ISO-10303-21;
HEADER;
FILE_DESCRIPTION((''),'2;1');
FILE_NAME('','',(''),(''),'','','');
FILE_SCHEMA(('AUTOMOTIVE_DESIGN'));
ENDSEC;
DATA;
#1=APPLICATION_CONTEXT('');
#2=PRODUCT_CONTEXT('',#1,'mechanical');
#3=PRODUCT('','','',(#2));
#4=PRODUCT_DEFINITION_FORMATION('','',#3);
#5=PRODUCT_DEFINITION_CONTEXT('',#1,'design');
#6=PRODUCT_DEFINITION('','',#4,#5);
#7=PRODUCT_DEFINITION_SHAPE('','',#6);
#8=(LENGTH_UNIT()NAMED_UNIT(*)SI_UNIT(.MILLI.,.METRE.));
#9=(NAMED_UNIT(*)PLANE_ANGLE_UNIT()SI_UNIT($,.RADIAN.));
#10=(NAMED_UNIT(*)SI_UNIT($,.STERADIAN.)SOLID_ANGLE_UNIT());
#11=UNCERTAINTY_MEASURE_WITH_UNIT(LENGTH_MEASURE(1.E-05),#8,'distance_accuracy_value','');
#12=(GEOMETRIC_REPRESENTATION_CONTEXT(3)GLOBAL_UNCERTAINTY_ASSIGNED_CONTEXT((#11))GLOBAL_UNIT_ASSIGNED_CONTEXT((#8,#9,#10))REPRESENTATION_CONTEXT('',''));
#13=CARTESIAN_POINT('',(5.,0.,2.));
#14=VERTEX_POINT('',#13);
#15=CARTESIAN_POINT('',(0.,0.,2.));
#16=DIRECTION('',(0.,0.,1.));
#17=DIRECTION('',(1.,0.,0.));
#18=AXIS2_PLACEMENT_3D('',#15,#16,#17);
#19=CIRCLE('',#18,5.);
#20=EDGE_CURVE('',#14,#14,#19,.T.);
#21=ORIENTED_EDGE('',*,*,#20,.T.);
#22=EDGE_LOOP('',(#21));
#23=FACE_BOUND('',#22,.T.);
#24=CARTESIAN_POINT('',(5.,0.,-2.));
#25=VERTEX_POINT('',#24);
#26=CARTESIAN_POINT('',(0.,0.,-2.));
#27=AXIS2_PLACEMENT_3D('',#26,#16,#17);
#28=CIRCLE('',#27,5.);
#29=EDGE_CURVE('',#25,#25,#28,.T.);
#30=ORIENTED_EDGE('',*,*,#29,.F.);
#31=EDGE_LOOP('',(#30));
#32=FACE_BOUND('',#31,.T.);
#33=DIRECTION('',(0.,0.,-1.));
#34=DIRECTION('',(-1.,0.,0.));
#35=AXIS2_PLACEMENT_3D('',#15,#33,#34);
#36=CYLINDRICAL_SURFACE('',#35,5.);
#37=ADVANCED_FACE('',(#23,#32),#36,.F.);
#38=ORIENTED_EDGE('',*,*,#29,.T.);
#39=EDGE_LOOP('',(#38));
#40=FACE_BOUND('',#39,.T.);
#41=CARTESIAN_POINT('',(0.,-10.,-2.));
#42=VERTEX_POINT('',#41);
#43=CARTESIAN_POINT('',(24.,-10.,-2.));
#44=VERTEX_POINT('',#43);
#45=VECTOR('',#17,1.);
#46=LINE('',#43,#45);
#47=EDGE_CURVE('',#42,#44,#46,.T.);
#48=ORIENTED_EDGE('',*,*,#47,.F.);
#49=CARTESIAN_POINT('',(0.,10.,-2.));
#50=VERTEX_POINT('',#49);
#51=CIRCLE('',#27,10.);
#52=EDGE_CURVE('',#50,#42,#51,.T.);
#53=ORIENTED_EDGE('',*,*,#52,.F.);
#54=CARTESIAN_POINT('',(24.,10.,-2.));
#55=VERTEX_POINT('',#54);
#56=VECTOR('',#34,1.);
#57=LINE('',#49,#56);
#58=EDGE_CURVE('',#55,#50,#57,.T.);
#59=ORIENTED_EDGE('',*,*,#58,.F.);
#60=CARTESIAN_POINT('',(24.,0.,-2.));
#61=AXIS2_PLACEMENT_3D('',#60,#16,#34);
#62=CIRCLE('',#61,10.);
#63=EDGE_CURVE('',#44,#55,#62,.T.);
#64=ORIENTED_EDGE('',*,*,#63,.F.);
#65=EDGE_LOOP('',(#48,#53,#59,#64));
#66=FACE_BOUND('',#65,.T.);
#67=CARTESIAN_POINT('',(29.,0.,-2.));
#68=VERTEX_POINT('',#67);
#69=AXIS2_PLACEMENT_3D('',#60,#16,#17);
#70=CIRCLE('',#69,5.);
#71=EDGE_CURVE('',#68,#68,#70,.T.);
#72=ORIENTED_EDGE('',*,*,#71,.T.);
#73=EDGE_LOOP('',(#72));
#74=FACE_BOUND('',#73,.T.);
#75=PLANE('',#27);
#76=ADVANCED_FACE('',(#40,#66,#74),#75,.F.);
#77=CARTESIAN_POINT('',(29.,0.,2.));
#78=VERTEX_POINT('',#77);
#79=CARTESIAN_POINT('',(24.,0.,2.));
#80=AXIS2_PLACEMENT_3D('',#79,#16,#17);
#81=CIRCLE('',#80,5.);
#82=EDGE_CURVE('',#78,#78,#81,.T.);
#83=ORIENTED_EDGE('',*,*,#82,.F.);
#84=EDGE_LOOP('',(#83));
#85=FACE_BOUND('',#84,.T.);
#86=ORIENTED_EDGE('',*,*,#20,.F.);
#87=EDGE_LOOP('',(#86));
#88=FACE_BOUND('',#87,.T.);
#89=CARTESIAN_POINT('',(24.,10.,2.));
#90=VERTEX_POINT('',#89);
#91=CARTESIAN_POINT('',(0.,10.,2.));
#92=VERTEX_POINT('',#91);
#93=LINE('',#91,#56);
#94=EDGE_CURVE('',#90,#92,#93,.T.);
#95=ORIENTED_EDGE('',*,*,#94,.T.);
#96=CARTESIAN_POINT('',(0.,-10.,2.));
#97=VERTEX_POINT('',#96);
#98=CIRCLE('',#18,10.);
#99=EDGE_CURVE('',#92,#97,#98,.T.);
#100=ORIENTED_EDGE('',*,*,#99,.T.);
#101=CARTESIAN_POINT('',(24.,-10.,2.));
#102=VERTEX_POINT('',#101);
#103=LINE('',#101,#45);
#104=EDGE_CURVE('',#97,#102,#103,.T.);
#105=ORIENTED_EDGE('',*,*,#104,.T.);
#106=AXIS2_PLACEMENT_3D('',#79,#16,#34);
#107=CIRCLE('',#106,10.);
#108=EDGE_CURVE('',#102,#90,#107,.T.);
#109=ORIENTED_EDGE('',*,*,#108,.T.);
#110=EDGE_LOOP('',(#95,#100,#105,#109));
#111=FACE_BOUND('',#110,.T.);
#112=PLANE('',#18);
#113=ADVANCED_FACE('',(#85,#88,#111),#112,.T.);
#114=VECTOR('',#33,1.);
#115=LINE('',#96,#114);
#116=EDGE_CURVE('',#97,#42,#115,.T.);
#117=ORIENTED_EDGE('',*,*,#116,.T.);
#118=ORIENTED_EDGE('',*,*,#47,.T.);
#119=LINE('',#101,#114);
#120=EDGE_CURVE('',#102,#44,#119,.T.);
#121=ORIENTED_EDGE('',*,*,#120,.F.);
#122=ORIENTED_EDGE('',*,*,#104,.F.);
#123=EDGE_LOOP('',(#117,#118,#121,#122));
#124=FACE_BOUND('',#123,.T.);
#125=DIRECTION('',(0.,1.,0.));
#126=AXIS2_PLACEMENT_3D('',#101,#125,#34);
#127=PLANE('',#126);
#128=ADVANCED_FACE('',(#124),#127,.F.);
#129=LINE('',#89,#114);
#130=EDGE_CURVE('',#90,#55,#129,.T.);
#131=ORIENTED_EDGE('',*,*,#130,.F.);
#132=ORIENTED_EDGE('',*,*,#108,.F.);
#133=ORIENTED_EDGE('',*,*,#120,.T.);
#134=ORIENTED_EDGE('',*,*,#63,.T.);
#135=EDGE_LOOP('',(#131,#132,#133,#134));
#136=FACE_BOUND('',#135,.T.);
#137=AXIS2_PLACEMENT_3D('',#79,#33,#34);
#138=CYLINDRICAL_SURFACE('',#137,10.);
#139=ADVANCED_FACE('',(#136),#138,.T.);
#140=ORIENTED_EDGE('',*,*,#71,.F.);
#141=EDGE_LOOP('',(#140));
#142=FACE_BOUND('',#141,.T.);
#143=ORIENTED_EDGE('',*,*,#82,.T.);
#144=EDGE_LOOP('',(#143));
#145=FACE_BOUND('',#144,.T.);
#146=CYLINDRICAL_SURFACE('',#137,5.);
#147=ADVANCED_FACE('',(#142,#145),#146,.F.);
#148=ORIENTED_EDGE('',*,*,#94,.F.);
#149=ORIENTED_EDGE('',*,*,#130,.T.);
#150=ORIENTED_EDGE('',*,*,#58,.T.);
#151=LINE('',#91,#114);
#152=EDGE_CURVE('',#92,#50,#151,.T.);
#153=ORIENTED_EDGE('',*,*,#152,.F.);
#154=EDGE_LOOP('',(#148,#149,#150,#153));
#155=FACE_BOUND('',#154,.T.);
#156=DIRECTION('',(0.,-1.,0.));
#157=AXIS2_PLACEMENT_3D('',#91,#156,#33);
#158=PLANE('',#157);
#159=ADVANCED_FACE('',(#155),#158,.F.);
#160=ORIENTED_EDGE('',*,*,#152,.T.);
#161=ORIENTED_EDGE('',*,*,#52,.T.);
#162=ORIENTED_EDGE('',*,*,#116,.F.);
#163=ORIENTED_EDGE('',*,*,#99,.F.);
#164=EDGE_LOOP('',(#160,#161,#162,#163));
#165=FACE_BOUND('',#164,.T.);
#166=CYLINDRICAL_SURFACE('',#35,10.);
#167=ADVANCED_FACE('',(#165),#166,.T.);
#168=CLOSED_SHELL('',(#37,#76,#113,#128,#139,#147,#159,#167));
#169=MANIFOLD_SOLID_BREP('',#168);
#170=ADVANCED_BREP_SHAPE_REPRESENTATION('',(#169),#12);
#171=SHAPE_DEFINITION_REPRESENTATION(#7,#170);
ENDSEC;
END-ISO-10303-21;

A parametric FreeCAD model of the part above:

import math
import FreeCAD as App
import Part
import Sketcher
from FreeCAD import Vector
Q = App.Units.Quantity

doc = App.newDocument("Part")
body = doc.addObject("PartDesign::Body", "Body")

# Sketch on XY plane
sketch1 = doc.addObject("Sketcher::SketchObject", "Sketch")
body.addObject(sketch1)
sketch1.AttachmentSupport = (doc.XY_Plane, [""])
sketch1.MapMode = "FlatFace"
sketch1.addGeometry([
    Part.LineSegment(Vector(24, 10, 0), Vector(0, 10, 0)),  # 0
    Part.ArcOfCircle(Part.Circle(Vector(0, 0, 0), Vector(0, 0, 1), 10), math.radians(90), math.radians(270)),  # 1
    Part.LineSegment(Vector(0, -10, 0), Vector(24, -10, 0)),  # 2
    Part.ArcOfCircle(Part.Circle(Vector(24, 0, 0), Vector(0, 0, 1), 10), math.radians(-90), math.radians(90)),  # 3
    Part.Circle(Vector(24, 0, 0), Vector(0, 0, 1), 5),  # 4
    Part.Circle(Vector(0, 0, 0), Vector(0, 0, 1), 5),  # 5
], False)
sketch1.addConstraint([
    Sketcher.Constraint("Tangent", 0, 2, 1, 1),
    Sketcher.Constraint("Tangent", 1, 2, 2, 1),
    Sketcher.Constraint("Tangent", 2, 2, 3, 1),
    Sketcher.Constraint("Tangent", 3, 2, 0, 1),
    Sketcher.Constraint("Horizontal", 0),
    Sketcher.Constraint("Horizontal", 2),
    Sketcher.Constraint("Coincident", 1, 3, -1, 1),
    Sketcher.Constraint("Coincident", 5, 3, -1, 1),
    Sketcher.Constraint("Coincident", 4, 3, 3, 3),
    Sketcher.Constraint("Equal", 4, 5),
    Sketcher.Constraint("Diameter", 4, Q("10 mm")),
    Sketcher.Constraint("Radius", 1, Q("10 mm")),
    Sketcher.Constraint("DistanceX", 0, 2, 0, 1, Q("24 mm")),
])
pad1 = doc.addObject("PartDesign::Pad", "Pad")
body.addObject(pad1)
pad1.Profile = sketch1
pad1.Length = 4
pad1.Midplane = True

doc.recompute()
